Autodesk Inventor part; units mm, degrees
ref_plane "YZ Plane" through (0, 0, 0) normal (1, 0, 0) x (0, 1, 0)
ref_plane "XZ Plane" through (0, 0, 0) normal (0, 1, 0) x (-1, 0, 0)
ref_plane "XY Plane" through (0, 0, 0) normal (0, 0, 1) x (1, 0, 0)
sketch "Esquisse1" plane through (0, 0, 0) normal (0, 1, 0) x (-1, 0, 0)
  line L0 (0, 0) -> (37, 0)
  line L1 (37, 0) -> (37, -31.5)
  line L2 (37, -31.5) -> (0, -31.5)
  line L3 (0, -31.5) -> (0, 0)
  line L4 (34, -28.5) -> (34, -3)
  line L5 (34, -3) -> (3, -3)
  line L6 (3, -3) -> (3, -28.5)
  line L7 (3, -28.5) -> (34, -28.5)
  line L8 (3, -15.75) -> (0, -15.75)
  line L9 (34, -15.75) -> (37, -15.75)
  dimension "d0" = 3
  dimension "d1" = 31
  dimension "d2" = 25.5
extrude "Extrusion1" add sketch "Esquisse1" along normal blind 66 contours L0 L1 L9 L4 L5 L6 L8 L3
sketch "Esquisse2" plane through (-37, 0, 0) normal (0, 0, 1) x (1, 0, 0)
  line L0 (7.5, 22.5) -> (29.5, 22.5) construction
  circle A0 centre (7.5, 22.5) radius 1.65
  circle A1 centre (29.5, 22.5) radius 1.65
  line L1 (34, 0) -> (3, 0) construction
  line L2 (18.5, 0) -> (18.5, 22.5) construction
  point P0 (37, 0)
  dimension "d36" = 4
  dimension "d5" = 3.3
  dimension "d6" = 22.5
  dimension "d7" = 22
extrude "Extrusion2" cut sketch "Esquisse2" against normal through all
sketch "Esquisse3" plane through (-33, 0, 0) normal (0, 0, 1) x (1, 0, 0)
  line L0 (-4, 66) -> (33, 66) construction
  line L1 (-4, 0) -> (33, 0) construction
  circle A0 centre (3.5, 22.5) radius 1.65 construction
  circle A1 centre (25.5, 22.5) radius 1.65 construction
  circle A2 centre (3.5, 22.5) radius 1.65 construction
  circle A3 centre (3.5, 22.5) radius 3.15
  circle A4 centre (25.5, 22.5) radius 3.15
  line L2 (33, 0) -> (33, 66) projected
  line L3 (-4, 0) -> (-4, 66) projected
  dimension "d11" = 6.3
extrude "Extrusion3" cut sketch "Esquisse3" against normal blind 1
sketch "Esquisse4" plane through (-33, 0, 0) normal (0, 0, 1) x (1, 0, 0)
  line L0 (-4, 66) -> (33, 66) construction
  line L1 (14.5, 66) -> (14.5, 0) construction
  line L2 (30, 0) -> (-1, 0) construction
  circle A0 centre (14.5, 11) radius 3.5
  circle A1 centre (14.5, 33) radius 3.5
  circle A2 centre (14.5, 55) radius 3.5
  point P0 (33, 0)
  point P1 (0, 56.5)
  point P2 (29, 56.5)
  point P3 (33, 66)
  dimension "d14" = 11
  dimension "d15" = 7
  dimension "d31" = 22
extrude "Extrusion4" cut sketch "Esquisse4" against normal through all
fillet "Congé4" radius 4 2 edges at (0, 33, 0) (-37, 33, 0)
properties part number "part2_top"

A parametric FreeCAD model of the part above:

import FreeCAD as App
import Part
import Sketcher

V = App.Vector
Q = App.Units.Quantity


def edges_at(feature, points):
    """Names of the edges that pass closest to the given points."""
    edges = feature.Shape.Edges
    near = lambda p: min(range(len(edges)), key=lambda i: edges[i].distToShape(Part.Vertex(*p))[0])
    return sorted({f"Edge{near(p) + 1}" for p in points})

doc = App.newDocument("Part")
body = doc.addObject("PartDesign::Body", "Body")

# Sketch on XZ plane
sketch1 = body.newObject("Sketcher::SketchObject", "Sketch")
sketch1.AttachmentSupport = (doc.getObject("XZ_Plane"), [""])
sketch1.MapMode = "FlatFace"
sketch1.addGeometry(Part.LineSegment(V(-37, 0, 0), V(0, 0, 0)), False)
sketch1.addGeometry(Part.LineSegment(V(0, 0, 0), V(0, -15.8, 0)), False)
sketch1.addGeometry(Part.LineSegment(V(0, -15.8, 0), V(-3, -15.8, 0)), False)
sketch1.addGeometry(Part.LineSegment(V(-3, -15.8, 0), V(-3, -3, 0)), False)
sketch1.addGeometry(Part.LineSegment(V(-3, -3, 0), V(-34, -3, 0)), False)
sketch1.addGeometry(Part.LineSegment(V(-34, -3, 0), V(-34, -15.8, 0)), False)
sketch1.addGeometry(Part.LineSegment(V(-34, -15.8, 0), V(-37, -15.8, 0)), False)
sketch1.addGeometry(Part.LineSegment(V(-37, -15.8, 0), V(-37, 0, 0)), False)
sketch1.addConstraint(Sketcher.Constraint("Coincident", 0, 2, 1, 1))
sketch1.addConstraint(Sketcher.Constraint("Coincident", 1, 2, 2, 1))
sketch1.addConstraint(Sketcher.Constraint("Coincident", 2, 2, 3, 1))
sketch1.addConstraint(Sketcher.Constraint("Coincident", 3, 2, 4, 1))
sketch1.addConstraint(Sketcher.Constraint("Coincident", 4, 2, 5, 1))
sketch1.addConstraint(Sketcher.Constraint("Coincident", 5, 2, 6, 1))
sketch1.addConstraint(Sketcher.Constraint("Coincident", 6, 2, 7, 1))
sketch1.addConstraint(Sketcher.Constraint("Coincident", 7, 2, 0, 1))
sketch1.addConstraint(Sketcher.Constraint("Horizontal", 0))
sketch1.addConstraint(Sketcher.Constraint("Vertical", 1))
sketch1.addConstraint(Sketcher.Constraint("Horizontal", 2))
sketch1.addConstraint(Sketcher.Constraint("Vertical", 3))
sketch1.addConstraint(Sketcher.Constraint("Horizontal", 4))
sketch1.addConstraint(Sketcher.Constraint("Vertical", 5))
sketch1.addConstraint(Sketcher.Constraint("Horizontal", 6))
sketch1.addConstraint(Sketcher.Constraint("Vertical", 7))
sketch1.addConstraint(Sketcher.Constraint("Coincident", 0, 2, -1, 1))
sketch1.addConstraint(Sketcher.Constraint("Horizontal", 2, 2, 5, 2))
sketch1.addConstraint(Sketcher.Constraint("Equal", 2, 6))
sketch1.addConstraint(Sketcher.Constraint("DistanceX", 2, 2, 2, 1, Q("3 mm")))
sketch1.addConstraint(Sketcher.Constraint("DistanceX", 4, 2, 4, 1, Q("31 mm")))
sketch1.addConstraint(Sketcher.Constraint("DistanceY", 3, 2, -1, 1, Q("3 mm")))
sketch1.addConstraint(Sketcher.Constraint("DistanceY", 1, 2, 1, 1, Q("15.75 mm")))
pad1 = body.newObject("PartDesign::Pad", "Pad")
pad1.Profile = sketch1
pad1.Length = 66
pad1.Reversed = True

# Sketch on XY plane
sketch2 = body.newObject("Sketcher::SketchObject", "Sketch001")
sketch2.AttachmentSupport = (doc.getObject("XY_Plane"), [""])
sketch2.MapMode = "FlatFace"
sketch2.addGeometry(Part.Circle(V(-29.5, 22.5, 0), V(0, 0, 1), 1.6), False)
sketch2.addGeometry(Part.Circle(V(-7.5, 22.5, 0), V(0, 0, 1), 1.6), False)
sketch2.addConstraint(Sketcher.Constraint("Equal", 0, 1))
sketch2.addConstraint(Sketcher.Constraint("Horizontal", 0, 3, 1, 3))
sketch2.addConstraint(Sketcher.Constraint("Diameter", 0, Q("3.3 mm")))
sketch2.addConstraint(Sketcher.Constraint("DistanceX", 0, 3, 1, 3, Q("22 mm")))
sketch2.addConstraint(Sketcher.Constraint("DistanceY", -1, 1, 0, 3, Q("22.5 mm")))
sketch2.addConstraint(Sketcher.Constraint("DistanceX", 0, 3, -1, 1, Q("29.5 mm")))
pocket1 = body.newObject("PartDesign::Pocket", "Pocket")
pocket1.Profile = sketch2
pocket1.Type = "ThroughAll"

# Sketch on XY plane
sketch3 = body.newObject("Sketcher::SketchObject", "Sketch002")
sketch3.AttachmentSupport = (doc.getObject("XY_Plane"), [""])
sketch3.MapMode = "FlatFace"
sketch3.addGeometry(Part.Circle(V(-29.5, 22.5, 0), V(0, 0, 1), 3.1), False)
sketch3.addGeometry(Part.Circle(V(-7.5, 22.5, 0), V(0, 0, 1), 3.1), False)
sketch3.addConstraint(Sketcher.Constraint("Equal", 0, 1))
sketch3.addConstraint(Sketcher.Constraint("Horizontal", 0, 3, 1, 3))
sketch3.addConstraint(Sketcher.Constraint("Diameter", 0, Q("6.3 mm")))
sketch3.addConstraint(Sketcher.Constraint("DistanceX", 0, 3, 1, 3, Q("22 mm")))
sketch3.addConstraint(Sketcher.Constraint("DistanceX", 0, 3, -1, 1, Q("29.5 mm")))
sketch3.addConstraint(Sketcher.Constraint("DistanceY", -1, 1, 0, 3, Q("22.5 mm")))
pocket2 = body.newObject("PartDesign::Pocket", "Pocket001")
pocket2.Profile = sketch3
pocket2.Length = 1

# Sketch on XY plane
sketch4 = body.newObject("Sketcher::SketchObject", "Sketch003")
sketch4.AttachmentSupport = (doc.getObject("XY_Plane"), [""])
sketch4.MapMode = "FlatFace"
sketch4.addGeometry(Part.Circle(V(-18.5, 11, 0), V(0, 0, 1), 3.5), False)
sketch4.addGeometry(Part.Circle(V(-18.5, 33, 0), V(0, 0, 1), 3.5), False)
sketch4.addGeometry(Part.Circle(V(-18.5, 55, 0), V(0, 0, 1), 3.5), False)
sketch4.addConstraint(Sketcher.Constraint("Equal", 0, 1))
sketch4.addConstraint(Sketcher.Constraint("Equal", 1, 2))
sketch4.addConstraint(Sketcher.Constraint("Vertical", 0, 3, 1, 3))
sketch4.addConstraint(Sketcher.Constraint("Vertical", 1, 3, 2, 3))
sketch4.addConstraint(Sketcher.Constraint("Diameter", 0, Q("7 mm")))
sketch4.addConstraint(Sketcher.Constraint("DistanceY", -1, 1, 0, 3, Q("11 mm")))
sketch4.addConstraint(Sketcher.Constraint("DistanceY", 0, 3, 1, 3, Q("22 mm")))
sketch4.addConstraint(Sketcher.Constraint("DistanceY", 1, 3, 2, 3, Q("22 mm")))
sketch4.addConstraint(Sketcher.Constraint("DistanceX", 0, 3, -1, 1, Q("18.5 mm")))
pocket3 = body.newObject("PartDesign::Pocket", "Pocket002")
pocket3.Profile = sketch4
pocket3.Type = "ThroughAll"
doc.recompute()

fillet = body.newObject("PartDesign::Fillet", "Fillet")
fillet.Base = (pocket3, edges_at(pocket3, [(0, 33, 0), (-37, 33, 0)]))
fillet.Radius = 4

doc.recompute()
